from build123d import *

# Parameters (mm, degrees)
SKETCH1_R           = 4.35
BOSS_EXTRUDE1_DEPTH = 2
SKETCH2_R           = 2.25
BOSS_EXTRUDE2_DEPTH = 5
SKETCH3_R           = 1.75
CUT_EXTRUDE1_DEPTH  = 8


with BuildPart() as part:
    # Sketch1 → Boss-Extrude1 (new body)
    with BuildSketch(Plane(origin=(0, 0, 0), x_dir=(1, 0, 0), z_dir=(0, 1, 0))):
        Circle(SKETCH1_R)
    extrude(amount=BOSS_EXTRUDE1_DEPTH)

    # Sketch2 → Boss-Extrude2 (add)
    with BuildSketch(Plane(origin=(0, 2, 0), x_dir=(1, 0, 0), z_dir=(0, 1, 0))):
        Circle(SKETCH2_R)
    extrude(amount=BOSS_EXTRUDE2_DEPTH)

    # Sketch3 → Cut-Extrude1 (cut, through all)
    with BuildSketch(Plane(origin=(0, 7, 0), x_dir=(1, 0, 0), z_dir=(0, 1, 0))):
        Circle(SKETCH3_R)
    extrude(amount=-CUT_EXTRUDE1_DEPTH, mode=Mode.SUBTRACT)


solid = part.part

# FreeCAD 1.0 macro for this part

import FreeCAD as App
import Part
import Sketcher
from FreeCAD import Vector

doc = App.newDocument("Part")
params = doc.addObject("Spreadsheet::Sheet", "Params")
for row, (alias, value) in enumerate([
    ("sketch1_diameter", "8.7 mm"),
    ("pad1_length", "2 mm"),
    ("sketch2_diameter", "4.5 mm"),
    ("pad2_length", "5 mm"),
    ("sketch3_diameter", "3.5 mm"),
], start=1):
    params.set(f"A{row}", alias)
    params.set(f"B{row}", "=" + value)
    params.setAlias(f"B{row}", alias)

body = doc.addObject("PartDesign::Body", "Body")

sketch1 = body.newObject("Sketcher::SketchObject", "Sketch")
sketch1.AttachmentSupport = (doc.getObject("XZ_Plane"), [""])
sketch1.MapMode = "FlatFace"
sketch1.addGeometry(Part.Circle(Vector(0, 0, 0), Vector(0, 0, 1), 4.3), False)
sketch1.addConstraint(Sketcher.Constraint("Coincident", 0, 3, -1, 1))
sketch1.addConstraint(Sketcher.Constraint("Diameter", 0, 8.7))
sketch1.setExpression("Constraints[1]", "Params.sketch1_diameter")
pad1 = body.newObject("PartDesign::Pad", "Pad")
pad1.Profile = sketch1
pad1.setExpression("Length", "Params.pad1_length")
pad1.Reversed = True

sketch2 = body.newObject("Sketcher::SketchObject", "Sketch001")
sketch2.AttachmentSupport = (doc.getObject("XZ_Plane"), [""])
sketch2.MapMode = "FlatFace"
sketch2.AttachmentOffset = App.Placement(Vector(0, 0, -2), App.Rotation())
sketch2.addGeometry(Part.Circle(Vector(0, 0, 0), Vector(0, 0, 1), 2.2), False)
sketch2.addConstraint(Sketcher.Constraint("Coincident", 0, 3, -1, 1))
sketch2.addConstraint(Sketcher.Constraint("Diameter", 0, 4.5))
sketch2.setExpression("Constraints[1]", "Params.sketch2_diameter")
pad2 = body.newObject("PartDesign::Pad", "Pad001")
pad2.Profile = sketch2
pad2.setExpression("Length", "Params.pad2_length")
pad2.Reversed = True

sketch3 = body.newObject("Sketcher::SketchObject", "Sketch002")
sketch3.AttachmentSupport = (doc.getObject("XZ_Plane"), [""])
sketch3.MapMode = "FlatFace"
sketch3.AttachmentOffset = App.Placement(Vector(0, 0, -7), App.Rotation())
sketch3.addGeometry(Part.Circle(Vector(0, 0, 0), Vector(0, 0, 1), 1.8), False)
sketch3.addConstraint(Sketcher.Constraint("Coincident", 0, 3, -1, 1))
sketch3.addConstraint(Sketcher.Constraint("Diameter", 0, 3.5))
sketch3.setExpression("Constraints[1]", "Params.sketch3_diameter")
pocket1 = body.newObject("PartDesign::Pocket", "Pocket")
pocket1.Profile = sketch3
pocket1.Type = "ThroughAll"
pocket1.Reversed = True

doc.recompute()
